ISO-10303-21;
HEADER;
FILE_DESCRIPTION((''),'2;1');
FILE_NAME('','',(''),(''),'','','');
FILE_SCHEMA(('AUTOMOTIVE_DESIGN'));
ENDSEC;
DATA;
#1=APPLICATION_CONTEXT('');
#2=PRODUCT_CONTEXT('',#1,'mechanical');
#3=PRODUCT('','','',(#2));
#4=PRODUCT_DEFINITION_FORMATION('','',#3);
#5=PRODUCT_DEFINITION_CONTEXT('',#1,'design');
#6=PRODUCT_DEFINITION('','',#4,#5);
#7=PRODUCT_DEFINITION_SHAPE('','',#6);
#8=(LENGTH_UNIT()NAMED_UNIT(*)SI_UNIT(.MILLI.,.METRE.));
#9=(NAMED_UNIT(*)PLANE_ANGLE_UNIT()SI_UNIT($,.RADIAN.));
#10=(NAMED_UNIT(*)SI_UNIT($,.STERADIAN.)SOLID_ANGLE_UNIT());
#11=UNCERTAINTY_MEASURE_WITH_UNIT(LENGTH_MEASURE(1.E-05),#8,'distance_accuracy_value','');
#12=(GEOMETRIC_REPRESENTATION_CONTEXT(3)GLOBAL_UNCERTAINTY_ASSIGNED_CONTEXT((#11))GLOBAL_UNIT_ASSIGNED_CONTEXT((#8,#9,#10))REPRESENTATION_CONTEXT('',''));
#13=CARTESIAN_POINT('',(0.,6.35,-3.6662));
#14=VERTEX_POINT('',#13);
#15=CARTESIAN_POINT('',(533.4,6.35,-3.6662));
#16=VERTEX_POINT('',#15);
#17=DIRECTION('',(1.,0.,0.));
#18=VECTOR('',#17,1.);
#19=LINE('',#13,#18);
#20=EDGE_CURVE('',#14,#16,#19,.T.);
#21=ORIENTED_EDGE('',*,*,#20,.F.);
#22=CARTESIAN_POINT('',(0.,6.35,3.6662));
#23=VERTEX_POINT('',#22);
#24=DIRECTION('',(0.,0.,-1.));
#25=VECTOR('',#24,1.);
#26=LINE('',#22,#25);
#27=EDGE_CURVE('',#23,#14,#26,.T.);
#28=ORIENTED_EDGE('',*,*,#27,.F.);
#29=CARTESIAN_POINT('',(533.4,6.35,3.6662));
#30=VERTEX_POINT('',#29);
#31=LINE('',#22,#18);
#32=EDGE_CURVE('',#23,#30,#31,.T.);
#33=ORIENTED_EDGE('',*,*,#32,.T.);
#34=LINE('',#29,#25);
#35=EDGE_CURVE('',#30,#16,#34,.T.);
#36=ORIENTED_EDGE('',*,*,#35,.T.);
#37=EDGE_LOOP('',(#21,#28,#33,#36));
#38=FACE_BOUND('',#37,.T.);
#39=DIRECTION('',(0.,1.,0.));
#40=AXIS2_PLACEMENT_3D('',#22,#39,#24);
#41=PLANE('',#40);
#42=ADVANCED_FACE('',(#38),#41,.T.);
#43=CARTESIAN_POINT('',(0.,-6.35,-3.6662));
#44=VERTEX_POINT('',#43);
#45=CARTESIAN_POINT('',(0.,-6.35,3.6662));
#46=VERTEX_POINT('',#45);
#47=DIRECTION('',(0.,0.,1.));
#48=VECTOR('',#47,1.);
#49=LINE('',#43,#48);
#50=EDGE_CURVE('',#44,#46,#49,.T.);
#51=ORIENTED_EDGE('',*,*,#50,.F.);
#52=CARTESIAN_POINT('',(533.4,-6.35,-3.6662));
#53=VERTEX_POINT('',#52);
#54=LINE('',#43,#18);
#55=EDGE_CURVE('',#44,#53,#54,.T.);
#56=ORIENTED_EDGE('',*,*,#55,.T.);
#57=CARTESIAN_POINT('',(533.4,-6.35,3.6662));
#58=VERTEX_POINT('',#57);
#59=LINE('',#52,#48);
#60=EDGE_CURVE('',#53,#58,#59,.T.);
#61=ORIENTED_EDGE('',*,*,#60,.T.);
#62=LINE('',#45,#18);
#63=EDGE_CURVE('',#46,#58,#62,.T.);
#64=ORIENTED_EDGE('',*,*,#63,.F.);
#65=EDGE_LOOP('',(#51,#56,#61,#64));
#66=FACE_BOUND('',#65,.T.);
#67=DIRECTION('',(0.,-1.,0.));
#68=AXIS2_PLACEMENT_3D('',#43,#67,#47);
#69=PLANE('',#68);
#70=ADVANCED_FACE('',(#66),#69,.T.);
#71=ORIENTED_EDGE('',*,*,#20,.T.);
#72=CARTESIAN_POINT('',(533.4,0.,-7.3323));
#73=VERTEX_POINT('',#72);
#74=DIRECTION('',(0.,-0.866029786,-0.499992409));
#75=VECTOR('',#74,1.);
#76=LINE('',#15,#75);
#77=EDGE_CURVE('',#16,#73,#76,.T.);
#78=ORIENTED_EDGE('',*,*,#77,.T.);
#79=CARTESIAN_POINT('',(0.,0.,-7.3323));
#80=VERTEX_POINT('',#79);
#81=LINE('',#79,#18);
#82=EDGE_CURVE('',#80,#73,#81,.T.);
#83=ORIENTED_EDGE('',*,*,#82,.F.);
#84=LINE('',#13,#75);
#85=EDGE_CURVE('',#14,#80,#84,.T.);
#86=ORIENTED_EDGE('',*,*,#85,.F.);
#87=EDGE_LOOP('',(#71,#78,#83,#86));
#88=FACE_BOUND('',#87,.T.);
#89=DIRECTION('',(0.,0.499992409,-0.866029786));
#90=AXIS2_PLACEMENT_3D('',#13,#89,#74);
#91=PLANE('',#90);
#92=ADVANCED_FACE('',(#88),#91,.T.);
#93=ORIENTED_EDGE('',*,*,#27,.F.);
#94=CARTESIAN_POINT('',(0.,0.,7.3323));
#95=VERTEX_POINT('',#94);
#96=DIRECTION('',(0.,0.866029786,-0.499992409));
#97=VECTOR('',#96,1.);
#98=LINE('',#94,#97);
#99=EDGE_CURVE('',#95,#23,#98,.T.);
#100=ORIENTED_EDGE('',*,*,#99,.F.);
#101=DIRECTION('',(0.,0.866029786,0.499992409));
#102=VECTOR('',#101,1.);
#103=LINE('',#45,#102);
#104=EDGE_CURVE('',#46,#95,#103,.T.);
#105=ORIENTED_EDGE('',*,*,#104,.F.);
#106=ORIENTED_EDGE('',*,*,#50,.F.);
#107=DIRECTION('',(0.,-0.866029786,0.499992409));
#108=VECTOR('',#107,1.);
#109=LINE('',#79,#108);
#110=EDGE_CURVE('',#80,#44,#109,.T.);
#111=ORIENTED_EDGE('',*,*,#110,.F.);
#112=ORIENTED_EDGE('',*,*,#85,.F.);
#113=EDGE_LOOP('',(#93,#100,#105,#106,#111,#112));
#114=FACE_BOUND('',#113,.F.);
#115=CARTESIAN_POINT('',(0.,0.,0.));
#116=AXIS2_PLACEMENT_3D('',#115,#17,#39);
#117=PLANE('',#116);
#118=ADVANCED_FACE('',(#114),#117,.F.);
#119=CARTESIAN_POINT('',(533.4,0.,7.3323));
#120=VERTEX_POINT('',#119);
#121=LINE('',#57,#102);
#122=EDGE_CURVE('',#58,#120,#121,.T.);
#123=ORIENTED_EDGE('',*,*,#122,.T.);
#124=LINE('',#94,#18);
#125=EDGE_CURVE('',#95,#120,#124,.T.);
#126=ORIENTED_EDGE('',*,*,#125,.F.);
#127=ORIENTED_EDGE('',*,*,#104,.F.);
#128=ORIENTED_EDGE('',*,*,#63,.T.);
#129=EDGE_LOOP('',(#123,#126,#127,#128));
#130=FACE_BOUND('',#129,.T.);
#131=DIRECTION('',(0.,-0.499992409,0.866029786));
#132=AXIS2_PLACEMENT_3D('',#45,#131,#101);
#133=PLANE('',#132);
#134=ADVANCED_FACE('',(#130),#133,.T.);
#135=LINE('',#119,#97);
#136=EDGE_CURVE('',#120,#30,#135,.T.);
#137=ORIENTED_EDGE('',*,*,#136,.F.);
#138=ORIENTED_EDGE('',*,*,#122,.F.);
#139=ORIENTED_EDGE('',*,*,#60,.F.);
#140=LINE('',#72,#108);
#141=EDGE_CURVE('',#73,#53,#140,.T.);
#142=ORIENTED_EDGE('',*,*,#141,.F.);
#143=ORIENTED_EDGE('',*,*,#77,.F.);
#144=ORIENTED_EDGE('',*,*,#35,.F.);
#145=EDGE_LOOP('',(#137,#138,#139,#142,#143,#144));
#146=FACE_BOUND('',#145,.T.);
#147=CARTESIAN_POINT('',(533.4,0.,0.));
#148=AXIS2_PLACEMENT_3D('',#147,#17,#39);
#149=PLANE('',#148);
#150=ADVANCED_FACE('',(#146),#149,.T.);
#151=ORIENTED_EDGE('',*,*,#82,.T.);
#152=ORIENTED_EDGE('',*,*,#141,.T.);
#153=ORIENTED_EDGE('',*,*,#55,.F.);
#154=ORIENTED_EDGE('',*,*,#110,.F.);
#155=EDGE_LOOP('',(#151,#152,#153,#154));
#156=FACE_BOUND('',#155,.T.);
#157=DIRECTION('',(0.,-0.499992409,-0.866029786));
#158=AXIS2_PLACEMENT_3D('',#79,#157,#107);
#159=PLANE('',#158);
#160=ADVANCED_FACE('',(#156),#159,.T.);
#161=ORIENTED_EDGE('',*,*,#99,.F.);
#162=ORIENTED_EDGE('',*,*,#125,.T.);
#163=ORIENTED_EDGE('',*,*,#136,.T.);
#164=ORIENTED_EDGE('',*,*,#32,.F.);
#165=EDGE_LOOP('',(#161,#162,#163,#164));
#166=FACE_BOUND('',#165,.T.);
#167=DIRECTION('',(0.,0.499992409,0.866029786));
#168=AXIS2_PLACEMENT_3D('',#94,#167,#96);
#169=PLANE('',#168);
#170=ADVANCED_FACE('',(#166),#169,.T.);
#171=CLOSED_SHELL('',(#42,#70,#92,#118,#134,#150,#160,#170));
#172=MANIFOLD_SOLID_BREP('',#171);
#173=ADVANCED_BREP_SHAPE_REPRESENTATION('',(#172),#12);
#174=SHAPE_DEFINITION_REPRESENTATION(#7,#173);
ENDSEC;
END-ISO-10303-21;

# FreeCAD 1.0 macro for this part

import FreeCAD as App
import Part
import Sketcher
from FreeCAD import Vector
Q = App.Units.Quantity

doc = App.newDocument("Part")
body = doc.addObject("PartDesign::Body", "Body")

# Sketch on YZ plane
sketch1 = body.newObject("Sketcher::SketchObject", "Sketch")
sketch1.AttachmentSupport = (doc.getObject("YZ_Plane"), [""])
sketch1.MapMode = "FlatFace"
sketch1.addGeometry(Part.LineSegment(Vector(6.35, -3.6662, 0), Vector(6.35, 3.6662, 0)), False)
sketch1.addGeometry(Part.LineSegment(Vector(6.35, 3.6662, 0), Vector(0, 7.3323, 0)), False)
sketch1.addGeometry(Part.LineSegment(Vector(0, 7.3323, 0), Vector(-6.35, 3.6662, 0)), False)
sketch1.addGeometry(Part.LineSegment(Vector(-6.35, 3.6662, 0), Vector(-6.35, -3.6662, 0)), False)
sketch1.addGeometry(Part.LineSegment(Vector(-6.35, -3.6662, 0), Vector(0, -7.3323, 0)), False)
sketch1.addGeometry(Part.LineSegment(Vector(0, -7.3323, 0), Vector(6.35, -3.6662, 0)), False)
sketch1.addConstraint(Sketcher.Constraint("Coincident", 0, 2, 1, 1))
sketch1.addConstraint(Sketcher.Constraint("Coincident", 1, 2, 2, 1))
sketch1.addConstraint(Sketcher.Constraint("Coincident", 2, 2, 3, 1))
sketch1.addConstraint(Sketcher.Constraint("Coincident", 3, 2, 4, 1))
sketch1.addConstraint(Sketcher.Constraint("Coincident", 4, 2, 5, 1))
sketch1.addConstraint(Sketcher.Constraint("Coincident", 5, 2, 0, 1))
sketch1.addConstraint(Sketcher.Constraint("Vertical", 0))
sketch1.addConstraint(Sketcher.Constraint("Vertical", 3))
sketch1.addConstraint(Sketcher.Constraint("Symmetric", 0, 2, 3, 2, -1, 1))
sketch1.addConstraint(Sketcher.Constraint("Symmetric", 1, 2, 4, 2, -1, 1))
sketch1.addConstraint(Sketcher.Constraint("PointOnObject", 1, 2, -2))
sketch1.addConstraint(Sketcher.Constraint("Parallel", 2, 5))
sketch1.addConstraint(Sketcher.Constraint("Horizontal", 0, 2, 2, 2))
sketch1.addConstraint(Sketcher.Constraint("DistanceX", 2, 2, 0, 2, Q("0.5 in")))
sketch1.addConstraint(Sketcher.Constraint("Angle", 1, Q("150.0005 deg")))
sketch1.addConstraint(Sketcher.Constraint("DistanceY", 3, 2, 1, 2, Q("0.433 in")))
pad1 = body.newObject("PartDesign::Pad", "Pad")
pad1.Profile = sketch1
pad1.Length = Q("21 in")

doc.recompute()
